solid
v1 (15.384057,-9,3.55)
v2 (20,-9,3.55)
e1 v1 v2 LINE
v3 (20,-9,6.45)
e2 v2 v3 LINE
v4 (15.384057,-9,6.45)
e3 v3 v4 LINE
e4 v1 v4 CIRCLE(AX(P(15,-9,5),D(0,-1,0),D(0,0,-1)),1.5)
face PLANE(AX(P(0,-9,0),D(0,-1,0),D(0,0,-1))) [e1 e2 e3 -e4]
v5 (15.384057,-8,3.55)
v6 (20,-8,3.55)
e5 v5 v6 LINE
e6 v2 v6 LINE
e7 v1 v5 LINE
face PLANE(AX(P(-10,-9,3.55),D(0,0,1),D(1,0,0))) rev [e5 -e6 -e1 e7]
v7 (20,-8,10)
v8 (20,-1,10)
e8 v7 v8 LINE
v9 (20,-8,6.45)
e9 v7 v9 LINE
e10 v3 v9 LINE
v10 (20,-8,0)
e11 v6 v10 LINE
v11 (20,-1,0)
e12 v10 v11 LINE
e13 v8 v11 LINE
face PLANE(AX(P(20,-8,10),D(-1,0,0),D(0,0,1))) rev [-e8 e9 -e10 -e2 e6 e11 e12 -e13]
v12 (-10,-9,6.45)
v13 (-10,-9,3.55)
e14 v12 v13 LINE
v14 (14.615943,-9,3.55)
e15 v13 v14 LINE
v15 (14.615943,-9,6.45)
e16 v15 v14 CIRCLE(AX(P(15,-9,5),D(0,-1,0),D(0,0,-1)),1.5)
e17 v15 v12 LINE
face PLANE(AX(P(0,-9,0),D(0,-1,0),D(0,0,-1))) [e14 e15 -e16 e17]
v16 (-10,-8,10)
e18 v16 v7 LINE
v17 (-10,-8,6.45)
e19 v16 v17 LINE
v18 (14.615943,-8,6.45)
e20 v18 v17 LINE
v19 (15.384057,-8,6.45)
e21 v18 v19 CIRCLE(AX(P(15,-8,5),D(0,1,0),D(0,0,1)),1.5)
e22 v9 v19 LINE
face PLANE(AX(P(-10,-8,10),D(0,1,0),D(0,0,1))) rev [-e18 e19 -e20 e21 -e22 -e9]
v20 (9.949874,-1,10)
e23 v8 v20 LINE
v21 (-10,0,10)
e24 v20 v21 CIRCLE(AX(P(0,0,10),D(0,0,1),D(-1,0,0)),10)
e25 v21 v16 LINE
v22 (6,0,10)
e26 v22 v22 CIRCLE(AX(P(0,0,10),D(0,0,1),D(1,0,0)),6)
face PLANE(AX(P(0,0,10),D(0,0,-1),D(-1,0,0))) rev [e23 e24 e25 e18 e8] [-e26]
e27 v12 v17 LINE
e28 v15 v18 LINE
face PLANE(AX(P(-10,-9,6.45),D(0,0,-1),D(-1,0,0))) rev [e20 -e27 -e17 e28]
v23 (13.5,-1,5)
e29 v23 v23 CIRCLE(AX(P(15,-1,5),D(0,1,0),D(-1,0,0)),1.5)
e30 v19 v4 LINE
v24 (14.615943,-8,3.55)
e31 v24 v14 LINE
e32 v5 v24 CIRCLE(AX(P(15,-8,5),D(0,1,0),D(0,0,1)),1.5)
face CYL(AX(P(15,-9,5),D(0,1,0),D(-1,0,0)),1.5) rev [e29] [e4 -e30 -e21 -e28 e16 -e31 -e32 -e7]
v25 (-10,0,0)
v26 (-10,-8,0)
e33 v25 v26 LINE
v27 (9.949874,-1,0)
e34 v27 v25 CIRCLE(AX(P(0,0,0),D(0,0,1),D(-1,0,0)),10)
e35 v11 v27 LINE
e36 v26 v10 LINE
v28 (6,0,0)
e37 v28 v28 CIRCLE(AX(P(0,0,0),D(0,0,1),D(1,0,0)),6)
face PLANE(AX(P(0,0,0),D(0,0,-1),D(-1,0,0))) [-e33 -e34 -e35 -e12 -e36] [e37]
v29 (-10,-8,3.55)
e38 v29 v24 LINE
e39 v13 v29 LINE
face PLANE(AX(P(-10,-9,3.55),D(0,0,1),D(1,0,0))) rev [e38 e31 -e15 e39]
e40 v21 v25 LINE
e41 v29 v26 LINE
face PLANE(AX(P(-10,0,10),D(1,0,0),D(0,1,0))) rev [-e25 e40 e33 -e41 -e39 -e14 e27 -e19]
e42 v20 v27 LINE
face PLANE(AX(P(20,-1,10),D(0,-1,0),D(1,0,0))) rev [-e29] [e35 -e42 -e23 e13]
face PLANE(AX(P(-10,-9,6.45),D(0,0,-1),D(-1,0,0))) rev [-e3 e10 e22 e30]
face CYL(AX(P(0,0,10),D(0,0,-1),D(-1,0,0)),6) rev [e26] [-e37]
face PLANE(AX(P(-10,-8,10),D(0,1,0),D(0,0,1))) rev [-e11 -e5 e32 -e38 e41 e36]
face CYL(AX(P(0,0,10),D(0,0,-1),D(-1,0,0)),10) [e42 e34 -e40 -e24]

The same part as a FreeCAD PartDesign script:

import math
import FreeCAD as App
import Part
import Sketcher

doc = App.newDocument("Part")
body = doc.addObject("PartDesign::Body", "Body")

# Sketch on XY plane
sketch1 = body.newObject("Sketcher::SketchObject", "Sketch")
sketch1.AttachmentSupport = (doc.getObject("XY_Plane"), [""])
sketch1.MapMode = "FlatFace"
sketch1.addGeometry([
    Part.LineSegment(App.Vector(-10, 0, 0), App.Vector(-10, -8, 0)),  # 0
    Part.LineSegment(App.Vector(-10, -8, 0), App.Vector(20, -8, 0)),  # 1
    Part.LineSegment(App.Vector(20, -8, 0), App.Vector(20, -1, 0)),  # 2
    Part.LineSegment(App.Vector(20, -1, 0), App.Vector(10, -1, 0)),  # 3
    Part.ArcOfCircle(Part.Circle(App.Vector(0, 0, 0), App.Vector(0, 0, 1), 10), math.radians(-6), math.radians(180)),  # 4
    Part.Circle(App.Vector(0, 0, 0), App.Vector(0, 0, 1), 6),  # 5
], False)
sketch1.addConstraint([
    Sketcher.Constraint("Coincident", 0, 2, 1, 1),
    Sketcher.Constraint("Coincident", 1, 2, 2, 1),
    Sketcher.Constraint("Coincident", 2, 2, 3, 1),
    Sketcher.Constraint("Coincident", 3, 2, 4, 1),
    Sketcher.Constraint("Tangent", 4, 2, 0, 1),
    Sketcher.Constraint("Vertical", 0),
    Sketcher.Constraint("Horizontal", 1),
    Sketcher.Constraint("Vertical", 2),
    Sketcher.Constraint("Horizontal", 3),
    Sketcher.Constraint("Coincident", 4, 3, -1, 1),
    Sketcher.Constraint("Coincident", 5, 3, -1, 1),
    Sketcher.Constraint("Diameter", 5, 12.0),
    Sketcher.Constraint("Radius", 4, 10.0),
    Sketcher.Constraint("DistanceX", 1, 1, 1, 2, 30.0),
    Sketcher.Constraint("DistanceY", 0, 2, 0, 1, 8.0),
    Sketcher.Constraint("DistanceY", 2, 1, 2, 2, 7.0),
])
pad1 = body.newObject("PartDesign::Pad", "Pad")
pad1.Profile = sketch1
pad1.Length = 10

# Sketch on XZ plane
sketch2 = body.newObject("Sketcher::SketchObject", "Sketch001")
sketch2.AttachmentSupport = (doc.getObject("XZ_Plane"), [""])
sketch2.MapMode = "FlatFace"
sketch2.AttachmentOffset = App.Placement(App.Vector(0, 0, 8), App.Rotation())
sketch2.addGeometry([
    Part.LineSegment(App.Vector(20, 3.5, 0), App.Vector(20, 6.5, 0)),
    Part.LineSegment(App.Vector(20, 6.5, 0), App.Vector(-10, 6.5, 0)),
    Part.LineSegment(App.Vector(-10, 6.5, 0), App.Vector(-10, 3.5, 0)),
    Part.LineSegment(App.Vector(-10, 3.5, 0), App.Vector(20, 3.5, 0)),
], False)
sketch2.addConstraint([
    Sketcher.Constraint("Coincident", 0, 2, 1, 1),
    Sketcher.Constraint("Coincident", 1, 2, 2, 1),
    Sketcher.Constraint("Coincident", 2, 2, 3, 1),
    Sketcher.Constraint("Coincident", 3, 2, 0, 1),
    Sketcher.Constraint("Vertical", 0),
    Sketcher.Constraint("Horizontal", 1),
    Sketcher.Constraint("Vertical", 2),
    Sketcher.Constraint("Horizontal", 3),
    Sketcher.Constraint("DistanceX", 1, 2, 1, 1, 30.0),
    Sketcher.Constraint("DistanceY", 0, 1, 0, 2, 2.9),
    Sketcher.Constraint("DistanceX", -1, 1, 0, 2, 20.0),
    Sketcher.Constraint("DistanceY", -1, 1, 0, 2, 6.45),
])
pad2 = body.newObject("PartDesign::Pad", "Pad001")
pad2.Profile = sketch2
pad2.Length = 1

# Sketch on XZ plane
sketch3 = body.newObject("Sketcher::SketchObject", "Sketch002")
sketch3.AttachmentSupport = (doc.getObject("XZ_Plane"), [""])
sketch3.MapMode = "FlatFace"
sketch3.AttachmentOffset = App.Placement(App.Vector(0, 0, 1), App.Rotation())
sketch3.addGeometry(Part.Circle(App.Vector(15, 5, 0), App.Vector(0, 0, 1), 1.5), False)
sketch3.addConstraint([
    Sketcher.Constraint("Diameter", 0, 3.0),
    Sketcher.Constraint("DistanceX", -1, 1, 0, 3, 15.0),
    Sketcher.Constraint("DistanceY", -1, 1, 0, 3, 5.0),
])
pocket1 = body.newObject("PartDesign::Pocket", "Pocket")
pocket1.Profile = sketch3
pocket1.Type = "ThroughAll"
pocket1.Reversed = True

doc.recompute()
